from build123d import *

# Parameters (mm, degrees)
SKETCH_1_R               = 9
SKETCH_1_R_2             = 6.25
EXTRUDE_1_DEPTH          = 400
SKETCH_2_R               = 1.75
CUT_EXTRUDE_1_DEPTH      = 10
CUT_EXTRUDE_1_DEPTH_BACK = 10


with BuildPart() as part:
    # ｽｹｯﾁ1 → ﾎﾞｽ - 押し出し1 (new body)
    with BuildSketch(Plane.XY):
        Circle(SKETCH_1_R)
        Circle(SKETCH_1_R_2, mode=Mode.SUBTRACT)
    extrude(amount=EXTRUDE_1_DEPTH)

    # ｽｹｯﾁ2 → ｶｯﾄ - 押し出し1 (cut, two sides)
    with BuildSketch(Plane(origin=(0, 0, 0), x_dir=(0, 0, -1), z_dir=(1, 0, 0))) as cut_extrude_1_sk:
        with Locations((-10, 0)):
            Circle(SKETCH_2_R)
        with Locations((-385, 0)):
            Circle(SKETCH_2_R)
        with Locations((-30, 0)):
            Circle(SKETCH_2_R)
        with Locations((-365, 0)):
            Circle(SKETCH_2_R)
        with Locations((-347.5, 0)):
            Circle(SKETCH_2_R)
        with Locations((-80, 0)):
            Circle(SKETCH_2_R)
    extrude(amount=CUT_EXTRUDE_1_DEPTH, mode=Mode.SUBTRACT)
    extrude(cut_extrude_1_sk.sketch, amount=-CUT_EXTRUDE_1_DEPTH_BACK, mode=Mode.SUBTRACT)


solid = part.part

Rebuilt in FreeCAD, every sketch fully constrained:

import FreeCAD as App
import Part
import Sketcher
from FreeCAD import Vector
Q = App.Units.Quantity

doc = App.newDocument("Part")
body = doc.addObject("PartDesign::Body", "Body")

# Sketch on XY plane
sketch1 = doc.addObject("Sketcher::SketchObject", "Sketch")
body.addObject(sketch1)
sketch1.AttachmentSupport = (doc.XY_Plane, [""])
sketch1.MapMode = "FlatFace"
sketch1.addGeometry(Part.Circle(Vector(0, 0, 0), Vector(0, 0, 1), 9), False)
sketch1.addGeometry(Part.Circle(Vector(0, 0, 0), Vector(0, 0, 1), 6), False)
sketch1.addConstraint(Sketcher.Constraint("Coincident", 0, 3, -1, 1))
sketch1.addConstraint(Sketcher.Constraint("Coincident", 1, 3, -1, 1))
sketch1.addConstraint(Sketcher.Constraint("Diameter", 0, Q("18 mm")))
sketch1.addConstraint(Sketcher.Constraint("Diameter", 1, Q("12.5 mm")))
pad1 = doc.addObject("PartDesign::Pad", "Pad")
body.addObject(pad1)
pad1.Profile = sketch1
pad1.Length = 400

# Sketch on YZ plane
sketch2 = doc.addObject("Sketcher::SketchObject", "Sketch001")
body.addObject(sketch2)
sketch2.AttachmentSupport = (doc.YZ_Plane, [""])
sketch2.MapMode = "FlatFace"
sketch2.addGeometry(Part.Circle(Vector(0, 10, 0), Vector(0, 0, 1), 1.8), False)
sketch2.addGeometry(Part.Circle(Vector(0, 385, 0), Vector(0, 0, 1), 1.8), False)
sketch2.addGeometry(Part.Circle(Vector(0, 30, 0), Vector(0, 0, 1), 1.8), False)
sketch2.addGeometry(Part.Circle(Vector(0, 365, 0), Vector(0, 0, 1), 1.8), False)
sketch2.addGeometry(Part.Circle(Vector(0, 347.5, 0), Vector(0, 0, 1), 1.8), False)
sketch2.addGeometry(Part.Circle(Vector(0, 80, 0), Vector(0, 0, 1), 1.8), False)
sketch2.addConstraint(Sketcher.Constraint("Equal", 0, 1))
sketch2.addConstraint(Sketcher.Constraint("Equal", 1, 2))
sketch2.addConstraint(Sketcher.Constraint("Equal", 2, 3))
sketch2.addConstraint(Sketcher.Constraint("Equal", 3, 4))
sketch2.addConstraint(Sketcher.Constraint("Equal", 4, 5))
sketch2.addConstraint(Sketcher.Constraint("PointOnObject", 0, 3, -2))
sketch2.addConstraint(Sketcher.Constraint("PointOnObject", 1, 3, -2))
sketch2.addConstraint(Sketcher.Constraint("PointOnObject", 2, 3, -2))
sketch2.addConstraint(Sketcher.Constraint("PointOnObject", 3, 3, -2))
sketch2.addConstraint(Sketcher.Constraint("PointOnObject", 4, 3, -2))
sketch2.addConstraint(Sketcher.Constraint("PointOnObject", 5, 3, -2))
sketch2.addConstraint(Sketcher.Constraint("Diameter", 0, Q("3.5 mm")))
sketch2.addConstraint(Sketcher.Constraint("DistanceY", -1, 1, 0, 3, Q("10 mm")))
sketch2.addConstraint(Sketcher.Constraint("DistanceY", -1, 1, 1, 3, Q("385 mm")))
sketch2.addConstraint(Sketcher.Constraint("DistanceY", -1, 1, 2, 3, Q("30 mm")))
sketch2.addConstraint(Sketcher.Constraint("DistanceY", -1, 1, 3, 3, Q("365 mm")))
sketch2.addConstraint(Sketcher.Constraint("DistanceY", -1, 1, 5, 3, Q("80 mm")))
sketch2.addConstraint(Sketcher.Constraint("DistanceY", -1, 1, 4, 3, Q("347.5 mm")))
pocket1 = doc.addObject("PartDesign::Pocket", "Pocket")
body.addObject(pocket1)
pocket1.Profile = sketch2
pocket1.Type = "ThroughAll"
pocket1.Midplane = True

doc.recompute()
